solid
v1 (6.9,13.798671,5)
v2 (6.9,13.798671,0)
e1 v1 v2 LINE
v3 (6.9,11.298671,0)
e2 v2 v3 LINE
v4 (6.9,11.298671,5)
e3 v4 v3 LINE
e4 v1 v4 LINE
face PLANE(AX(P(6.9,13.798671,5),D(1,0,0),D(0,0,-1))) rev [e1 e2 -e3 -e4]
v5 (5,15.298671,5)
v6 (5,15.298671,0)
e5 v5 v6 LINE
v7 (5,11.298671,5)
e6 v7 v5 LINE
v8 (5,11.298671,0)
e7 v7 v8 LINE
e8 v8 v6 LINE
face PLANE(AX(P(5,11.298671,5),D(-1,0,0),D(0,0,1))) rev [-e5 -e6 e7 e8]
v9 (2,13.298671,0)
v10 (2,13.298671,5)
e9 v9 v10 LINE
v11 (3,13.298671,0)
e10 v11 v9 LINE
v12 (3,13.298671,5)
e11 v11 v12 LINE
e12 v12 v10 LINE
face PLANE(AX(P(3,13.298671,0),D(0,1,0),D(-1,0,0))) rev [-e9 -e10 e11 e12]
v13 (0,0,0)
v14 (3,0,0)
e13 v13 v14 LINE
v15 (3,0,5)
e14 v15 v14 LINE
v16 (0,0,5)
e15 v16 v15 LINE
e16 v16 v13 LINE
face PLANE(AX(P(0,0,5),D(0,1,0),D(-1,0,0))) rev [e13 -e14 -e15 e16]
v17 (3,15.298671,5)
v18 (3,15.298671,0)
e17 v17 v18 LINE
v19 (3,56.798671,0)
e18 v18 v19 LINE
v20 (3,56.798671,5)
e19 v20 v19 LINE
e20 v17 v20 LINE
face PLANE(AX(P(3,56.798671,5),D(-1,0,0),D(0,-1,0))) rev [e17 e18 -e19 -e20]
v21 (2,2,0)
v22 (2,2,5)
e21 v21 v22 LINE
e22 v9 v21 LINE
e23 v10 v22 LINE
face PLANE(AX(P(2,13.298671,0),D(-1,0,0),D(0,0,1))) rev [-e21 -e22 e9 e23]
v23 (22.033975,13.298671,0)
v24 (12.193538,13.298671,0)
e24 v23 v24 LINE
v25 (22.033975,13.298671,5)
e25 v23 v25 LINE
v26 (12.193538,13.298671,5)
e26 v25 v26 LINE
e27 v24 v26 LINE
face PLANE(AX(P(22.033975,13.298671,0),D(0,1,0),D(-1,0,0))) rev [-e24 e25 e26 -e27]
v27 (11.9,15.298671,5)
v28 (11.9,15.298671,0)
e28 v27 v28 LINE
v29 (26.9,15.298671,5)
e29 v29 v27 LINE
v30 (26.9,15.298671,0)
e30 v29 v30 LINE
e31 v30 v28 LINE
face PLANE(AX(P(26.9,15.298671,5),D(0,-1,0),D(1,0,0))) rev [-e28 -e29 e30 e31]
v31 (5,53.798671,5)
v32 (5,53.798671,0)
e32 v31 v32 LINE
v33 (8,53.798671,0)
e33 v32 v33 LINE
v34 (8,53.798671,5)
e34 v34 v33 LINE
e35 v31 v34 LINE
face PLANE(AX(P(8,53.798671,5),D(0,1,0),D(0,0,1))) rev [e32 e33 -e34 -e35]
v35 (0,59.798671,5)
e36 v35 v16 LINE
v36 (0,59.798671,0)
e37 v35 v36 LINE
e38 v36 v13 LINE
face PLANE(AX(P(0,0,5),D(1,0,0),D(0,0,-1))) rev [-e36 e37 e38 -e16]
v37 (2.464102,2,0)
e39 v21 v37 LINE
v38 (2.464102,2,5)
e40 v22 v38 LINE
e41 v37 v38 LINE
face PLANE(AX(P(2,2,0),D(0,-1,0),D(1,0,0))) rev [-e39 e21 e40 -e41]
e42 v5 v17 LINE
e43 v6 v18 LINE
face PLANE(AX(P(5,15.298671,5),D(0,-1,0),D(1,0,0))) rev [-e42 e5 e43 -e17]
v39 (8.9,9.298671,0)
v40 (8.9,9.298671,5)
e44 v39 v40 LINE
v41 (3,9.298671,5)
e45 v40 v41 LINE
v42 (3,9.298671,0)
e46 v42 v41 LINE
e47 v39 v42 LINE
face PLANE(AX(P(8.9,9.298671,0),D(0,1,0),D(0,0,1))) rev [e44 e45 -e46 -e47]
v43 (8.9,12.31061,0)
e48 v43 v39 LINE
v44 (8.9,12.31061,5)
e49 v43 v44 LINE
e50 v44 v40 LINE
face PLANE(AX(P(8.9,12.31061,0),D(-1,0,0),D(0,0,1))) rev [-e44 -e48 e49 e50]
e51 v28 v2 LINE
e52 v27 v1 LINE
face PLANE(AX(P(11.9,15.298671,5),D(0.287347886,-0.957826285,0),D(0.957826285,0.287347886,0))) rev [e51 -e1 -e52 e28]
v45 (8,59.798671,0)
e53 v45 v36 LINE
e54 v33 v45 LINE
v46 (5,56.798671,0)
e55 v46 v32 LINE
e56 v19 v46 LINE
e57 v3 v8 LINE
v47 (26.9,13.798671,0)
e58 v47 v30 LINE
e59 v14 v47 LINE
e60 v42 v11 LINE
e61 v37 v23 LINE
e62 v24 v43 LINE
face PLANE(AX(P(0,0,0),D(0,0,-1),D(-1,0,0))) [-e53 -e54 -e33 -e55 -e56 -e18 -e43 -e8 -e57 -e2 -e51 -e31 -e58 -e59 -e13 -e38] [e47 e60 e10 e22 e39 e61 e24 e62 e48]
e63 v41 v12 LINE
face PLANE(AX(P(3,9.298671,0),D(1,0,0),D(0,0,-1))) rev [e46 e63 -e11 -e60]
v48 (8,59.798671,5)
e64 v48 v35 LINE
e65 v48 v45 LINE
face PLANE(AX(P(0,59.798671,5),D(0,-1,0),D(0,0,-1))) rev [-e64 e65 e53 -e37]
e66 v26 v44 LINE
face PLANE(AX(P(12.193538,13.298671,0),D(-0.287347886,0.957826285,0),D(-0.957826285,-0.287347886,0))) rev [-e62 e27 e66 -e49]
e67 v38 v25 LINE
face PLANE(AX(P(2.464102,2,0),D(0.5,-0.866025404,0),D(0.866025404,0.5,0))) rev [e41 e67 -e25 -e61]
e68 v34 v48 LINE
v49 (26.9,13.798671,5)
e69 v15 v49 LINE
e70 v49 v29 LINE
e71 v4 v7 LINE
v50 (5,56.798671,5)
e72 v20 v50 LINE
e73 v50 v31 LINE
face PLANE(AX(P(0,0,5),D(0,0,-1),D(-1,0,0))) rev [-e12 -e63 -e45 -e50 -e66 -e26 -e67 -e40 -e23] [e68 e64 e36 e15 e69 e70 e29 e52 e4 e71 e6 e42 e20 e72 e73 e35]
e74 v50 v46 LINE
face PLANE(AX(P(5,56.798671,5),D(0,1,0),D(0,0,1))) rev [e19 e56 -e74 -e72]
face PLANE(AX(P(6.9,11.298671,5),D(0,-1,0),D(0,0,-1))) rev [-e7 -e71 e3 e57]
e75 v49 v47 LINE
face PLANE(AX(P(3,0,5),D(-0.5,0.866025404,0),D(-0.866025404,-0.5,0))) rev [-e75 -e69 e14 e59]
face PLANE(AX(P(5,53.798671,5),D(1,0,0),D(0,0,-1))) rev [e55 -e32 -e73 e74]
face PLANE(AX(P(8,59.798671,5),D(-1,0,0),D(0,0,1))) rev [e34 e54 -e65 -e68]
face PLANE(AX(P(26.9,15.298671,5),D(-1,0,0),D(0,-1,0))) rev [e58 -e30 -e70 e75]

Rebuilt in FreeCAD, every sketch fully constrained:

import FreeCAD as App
import Part
import Sketcher
Q = App.Units.Quantity


def add_polygon(sketch, points):
    """Adds a closed chain of lines whose ends are joined by coincident constraints."""
    first, n = sketch.GeometryCount, len(points)
    for a, b in zip(points, points[1:] + points[:1]):
        sketch.addGeometry(Part.LineSegment(App.Vector(*a, 0), App.Vector(*b, 0)), False)
    for i in range(n):
        sketch.addConstraint(Sketcher.Constraint("Coincident", first + i, 2, first + (i + 1) % n, 1))

doc = App.newDocument("Part")
body = doc.addObject("PartDesign::Body", "Body")

sketch1 = doc.addObject("Sketcher::SketchObject", "Sketch")
body.addObject(sketch1)
sketch1.AttachmentSupport = (doc.XY_Plane, [""])
sketch1.MapMode = "FlatFace"
add_polygon(sketch1, [(0, 59.8), (0, 0), (3, 0), (26.9, 13.8), (26.9, 15.3), (11.9, 15.3), (6.9, 13.8), (6.9, 11.3), (5, 11.3), (5, 15.3), (3, 15.3), (3, 56.8), (5, 56.8), (5, 53.8), (8, 53.8), (8, 59.8)])
sketch1.addConstraint(Sketcher.Constraint("Vertical", 0))
sketch1.addConstraint(Sketcher.Constraint("Horizontal", 1))
sketch1.addConstraint(Sketcher.Constraint("Vertical", 3))
sketch1.addConstraint(Sketcher.Constraint("Horizontal", 4))
sketch1.addConstraint(Sketcher.Constraint("Vertical", 6))
sketch1.addConstraint(Sketcher.Constraint("Horizontal", 7))
sketch1.addConstraint(Sketcher.Constraint("Vertical", 8))
sketch1.addConstraint(Sketcher.Constraint("Horizontal", 9))
sketch1.addConstraint(Sketcher.Constraint("Vertical", 10))
sketch1.addConstraint(Sketcher.Constraint("Horizontal", 11))
sketch1.addConstraint(Sketcher.Constraint("Vertical", 12))
sketch1.addConstraint(Sketcher.Constraint("Horizontal", 13))
sketch1.addConstraint(Sketcher.Constraint("Vertical", 14))
sketch1.addConstraint(Sketcher.Constraint("Horizontal", 15))
sketch1.addConstraint(Sketcher.Constraint("Coincident", 0, 2, -1, 1))
sketch1.addConstraint(Sketcher.Constraint("Horizontal", 2, 2, 5, 2))
sketch1.addConstraint(Sketcher.Constraint("Horizontal", 4, 2, 8, 2))
sketch1.addConstraint(Sketcher.Constraint("Vertical", 1, 2, 9, 2))
sketch1.addConstraint(Sketcher.Constraint("Vertical", 8, 2, 11, 2))
sketch1.addConstraint(Sketcher.Constraint("Equal", 1, 13))
sketch1.addConstraint(Sketcher.Constraint("Equal", 13, 12))
sketch1.addConstraint(Sketcher.Constraint("DistanceX", 1, 1, 1, 2, 3.0))
sketch1.addConstraint(Sketcher.Constraint("DistanceX", 4, 2, 4, 1, 15.0))
sketch1.addConstraint(Sketcher.Constraint("DistanceX", 9, 2, 9, 1, 2.0))
sketch1.addConstraint(Sketcher.Constraint("DistanceY", 8, 1, 8, 2, 4.0))
sketch1.addConstraint(Sketcher.Constraint("DistanceY", 14, 1, 14, 2, 6.0))
sketch1.addConstraint(Sketcher.Constraint("Angle", 2, Q("30 deg")))
sketch1.addConstraint(Sketcher.Constraint("DistanceX", 7, 2, 7, 1, 1.9))
sketch1.addConstraint(Sketcher.Constraint("DistanceY", 3, 1, 3, 2, 1.5))
sketch1.addConstraint(Sketcher.Constraint("DistanceY", 10, 1, 10, 2, 41.5))
sketch1.addConstraint(Sketcher.Constraint("DistanceX", 5, 2, 4, 2, 5.0))
pad1 = doc.addObject("PartDesign::Pad", "Pad")
body.addObject(pad1)
pad1.Profile = sketch1
pad1.Length = 5

sketch2 = doc.addObject("Sketcher::SketchObject", "Sketch001")
body.addObject(sketch2)
sketch2.AttachmentSupport = (doc.XY_Plane, [""])
sketch2.MapMode = "FlatFace"
sketch2.AttachmentOffset = App.Placement(App.Vector(0, 0, 5), App.Rotation())
add_polygon(sketch2, [(22.03, 13.3), (12.19, 13.3), (8.9, 12.31), (8.9, 9.3), (3, 9.3), (3, 13.3), (2, 13.3), (2, 2), (2.46, 2)])
sketch2.addConstraint(Sketcher.Constraint("Horizontal", 0))
sketch2.addConstraint(Sketcher.Constraint("Vertical", 2))
sketch2.addConstraint(Sketcher.Constraint("Horizontal", 3))
sketch2.addConstraint(Sketcher.Constraint("Vertical", 4))
sketch2.addConstraint(Sketcher.Constraint("Horizontal", 5))
sketch2.addConstraint(Sketcher.Constraint("Vertical", 6))
sketch2.addConstraint(Sketcher.Constraint("Horizontal", 7))
sketch2.addConstraint(Sketcher.Constraint("Horizontal", 0, 2, 4, 2))
sketch2.addConstraint(Sketcher.Constraint("DistanceX", 5, 2, 5, 1, 1.0))
sketch2.addConstraint(Sketcher.Constraint("DistanceY", 4, 1, 4, 2, 4.0))
sketch2.addConstraint(Sketcher.Constraint("Angle", 8, Q("30 deg")))
sketch2.addConstraint(Sketcher.Constraint("DistanceX", 3, 2, 3, 1, 5.9))
sketch2.addConstraint(Sketcher.Constraint("DistanceX", -1, 1, 3, 2, 3.0))
sketch2.addConstraint(Sketcher.Constraint("DistanceY", -1, 1, 6, 2, 2.0))
sketch2.addConstraint(Sketcher.Constraint("DistanceX", 7, 1, 7, 2, 0.464102))
sketch2.addConstraint(Sketcher.Constraint("DistanceY", 2, 2, 2, 1, 3.011939))
sketch2.addConstraint(Sketcher.Constraint("DistanceY", 6, 2, 6, 1, 11.298671))
sketch2.addConstraint(Sketcher.Constraint("DistanceX", 0, 2, 0, 1, 9.840437))
pocket1 = doc.addObject("PartDesign::Pocket", "Pocket")
body.addObject(pocket1)
pocket1.Profile = sketch2
pocket1.Type = "ThroughAll"

doc.recompute()
